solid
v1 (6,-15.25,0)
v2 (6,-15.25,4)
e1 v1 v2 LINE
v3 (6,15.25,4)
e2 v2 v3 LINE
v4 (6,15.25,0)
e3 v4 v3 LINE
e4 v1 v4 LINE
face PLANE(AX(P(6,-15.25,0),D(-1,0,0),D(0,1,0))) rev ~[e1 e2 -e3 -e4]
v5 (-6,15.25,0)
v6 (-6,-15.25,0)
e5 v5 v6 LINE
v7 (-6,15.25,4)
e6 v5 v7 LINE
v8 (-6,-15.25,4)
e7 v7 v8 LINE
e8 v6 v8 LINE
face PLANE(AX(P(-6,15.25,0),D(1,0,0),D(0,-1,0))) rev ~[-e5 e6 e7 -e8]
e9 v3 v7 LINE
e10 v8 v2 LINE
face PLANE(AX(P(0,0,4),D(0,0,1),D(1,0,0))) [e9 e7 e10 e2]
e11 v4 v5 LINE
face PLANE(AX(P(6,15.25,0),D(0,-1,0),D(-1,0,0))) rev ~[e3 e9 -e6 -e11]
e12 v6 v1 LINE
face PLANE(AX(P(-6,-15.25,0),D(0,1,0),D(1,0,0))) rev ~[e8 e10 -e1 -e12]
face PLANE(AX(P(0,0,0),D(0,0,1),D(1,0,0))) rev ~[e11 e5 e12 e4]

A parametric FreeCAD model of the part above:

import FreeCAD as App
import Part
import Sketcher


def add_polygon(sketch, points):
    """Adds a closed chain of lines whose ends are joined by coincident constraints."""
    first, n = sketch.GeometryCount, len(points)
    for a, b in zip(points, points[1:] + points[:1]):
        sketch.addGeometry(Part.LineSegment(App.Vector(*a, 0), App.Vector(*b, 0)), False)
    for i in range(n):
        sketch.addConstraint(Sketcher.Constraint("Coincident", first + i, 2, first + (i + 1) % n, 1))

doc = App.newDocument("Part")
params = doc.addObject("Spreadsheet::Sheet", "Params")
for row, (alias, value) in enumerate([
    ("sketch1_height", "30.5 mm"),
    ("pad1_length", "4 mm"),
], start=1):
    params.set(f"A{row}", alias)
    params.set(f"B{row}", "=" + value)
    params.setAlias(f"B{row}", alias)

body = doc.addObject("PartDesign::Body", "Body")

sketch1 = body.newObject("Sketcher::SketchObject", "Sketch")
sketch1.AttachmentSupport = (doc.getObject("XY_Plane"), [""])
sketch1.MapMode = "FlatFace"
add_polygon(sketch1, [(-6, 15), (-6, -15), (6, -15), (6, 15)])
sketch1.addConstraint(Sketcher.Constraint("Vertical", 0))
sketch1.addConstraint(Sketcher.Constraint("Horizontal", 1))
sketch1.addConstraint(Sketcher.Constraint("Vertical", 2))
sketch1.addConstraint(Sketcher.Constraint("Horizontal", 3))
sketch1.addConstraint(Sketcher.Constraint("Symmetric", 0, 2, 2, 2, -1, 1))
sketch1.addConstraint(Sketcher.Constraint("DistanceX", 0, 2, -1, 1, 6.0))
sketch1.addConstraint(Sketcher.Constraint("DistanceY", 0, 2, 0, 1, 30.5))
sketch1.setExpression("Constraints[10]", "Params.sketch1_height")
pad1 = body.newObject("PartDesign::Pad", "Pad")
pad1.Profile = sketch1
pad1.setExpression("Length", "Params.pad1_length")

doc.recompute()
